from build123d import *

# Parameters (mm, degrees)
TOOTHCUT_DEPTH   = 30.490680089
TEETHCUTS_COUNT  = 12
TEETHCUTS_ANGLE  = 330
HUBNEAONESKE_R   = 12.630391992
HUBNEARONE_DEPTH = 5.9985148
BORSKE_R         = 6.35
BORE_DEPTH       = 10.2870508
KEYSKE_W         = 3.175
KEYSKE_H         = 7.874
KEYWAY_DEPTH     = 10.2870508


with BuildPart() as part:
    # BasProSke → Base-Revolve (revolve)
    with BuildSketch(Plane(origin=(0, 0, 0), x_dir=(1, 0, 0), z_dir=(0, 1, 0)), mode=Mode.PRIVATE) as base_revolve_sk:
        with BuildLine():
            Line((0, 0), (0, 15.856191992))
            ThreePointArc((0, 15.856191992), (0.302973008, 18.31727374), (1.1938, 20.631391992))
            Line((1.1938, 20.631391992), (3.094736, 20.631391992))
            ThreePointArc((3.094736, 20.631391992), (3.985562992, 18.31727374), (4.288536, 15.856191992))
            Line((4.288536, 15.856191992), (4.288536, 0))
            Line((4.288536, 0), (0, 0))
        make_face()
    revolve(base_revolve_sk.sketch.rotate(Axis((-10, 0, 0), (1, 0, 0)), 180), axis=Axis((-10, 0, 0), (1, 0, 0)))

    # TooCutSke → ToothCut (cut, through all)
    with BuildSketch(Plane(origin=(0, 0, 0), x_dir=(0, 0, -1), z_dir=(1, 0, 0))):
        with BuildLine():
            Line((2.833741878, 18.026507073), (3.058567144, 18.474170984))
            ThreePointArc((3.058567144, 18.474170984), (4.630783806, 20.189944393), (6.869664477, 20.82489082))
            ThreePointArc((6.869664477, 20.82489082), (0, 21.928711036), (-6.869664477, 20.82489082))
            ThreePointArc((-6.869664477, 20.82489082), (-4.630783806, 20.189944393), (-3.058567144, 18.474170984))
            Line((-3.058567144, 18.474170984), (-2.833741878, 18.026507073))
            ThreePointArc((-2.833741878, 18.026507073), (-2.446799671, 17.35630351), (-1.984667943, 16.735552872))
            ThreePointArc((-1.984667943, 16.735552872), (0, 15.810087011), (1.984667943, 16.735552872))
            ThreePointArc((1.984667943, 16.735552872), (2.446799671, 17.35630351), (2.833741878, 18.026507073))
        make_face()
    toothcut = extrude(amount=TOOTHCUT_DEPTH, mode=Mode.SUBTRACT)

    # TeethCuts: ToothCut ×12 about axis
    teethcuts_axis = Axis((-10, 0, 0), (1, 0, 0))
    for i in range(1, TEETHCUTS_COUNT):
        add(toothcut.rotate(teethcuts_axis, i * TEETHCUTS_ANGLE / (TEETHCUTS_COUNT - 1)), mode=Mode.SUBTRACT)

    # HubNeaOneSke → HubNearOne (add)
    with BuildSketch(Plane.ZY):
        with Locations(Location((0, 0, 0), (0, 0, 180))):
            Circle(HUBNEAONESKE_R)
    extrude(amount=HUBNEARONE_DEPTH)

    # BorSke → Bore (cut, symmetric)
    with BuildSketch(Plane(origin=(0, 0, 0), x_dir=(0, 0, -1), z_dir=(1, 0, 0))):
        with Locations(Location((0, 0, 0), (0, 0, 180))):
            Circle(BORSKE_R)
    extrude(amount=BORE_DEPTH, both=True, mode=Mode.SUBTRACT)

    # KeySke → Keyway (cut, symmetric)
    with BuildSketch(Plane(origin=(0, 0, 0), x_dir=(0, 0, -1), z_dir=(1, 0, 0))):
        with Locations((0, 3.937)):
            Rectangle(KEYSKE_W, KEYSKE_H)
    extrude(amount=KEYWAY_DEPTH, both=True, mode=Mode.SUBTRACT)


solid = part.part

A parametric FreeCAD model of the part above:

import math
import FreeCAD as App
import Part
import Sketcher
Q = App.Units.Quantity

doc = App.newDocument("Part")
body = doc.addObject("PartDesign::Body", "Body")

# Sketch on XZ plane
sketch1 = body.newObject("Sketcher::SketchObject", "Sketch")
sketch1.AttachmentSupport = (doc.getObject("XZ_Plane"), [""])
sketch1.MapMode = "FlatFace"
sketch1.addGeometry([
    Part.LineSegment(App.Vector(0, -15.9, 0), App.Vector(0, 0, 0)),  # 0
    Part.LineSegment(App.Vector(0, 0, 0), App.Vector(4.3, 0, 0)),  # 1
    Part.LineSegment(App.Vector(4.3, 0, 0), App.Vector(4.3, -15.9, 0)),  # 2
    Part.ArcOfCircle(Part.Circle(App.Vector(-5.9, -15.9, 0), App.Vector(0, 0, 1), 10.1), math.radians(-28), math.radians(0)),  # 3
    Part.LineSegment(App.Vector(3.1, -20.6, 0), App.Vector(1.2, -20.6, 0)),  # 4
    Part.ArcOfCircle(Part.Circle(App.Vector(10.1, -15.9, 0), App.Vector(0, 0, 1), 10.1), math.radians(180), math.radians(208)),  # 5
], False)
sketch1.addConstraint([
    Sketcher.Constraint("Coincident", 0, 2, 1, 1),
    Sketcher.Constraint("Coincident", 1, 2, 2, 1),
    Sketcher.Constraint("Tangent", 2, 2, 3, 2),
    Sketcher.Constraint("Coincident", 3, 1, 4, 1),
    Sketcher.Constraint("Coincident", 4, 2, 5, 2),
    Sketcher.Constraint("Tangent", 5, 1, 0, 1),
    Sketcher.Constraint("Vertical", 0),
    Sketcher.Constraint("Horizontal", 1),
    Sketcher.Constraint("Vertical", 2),
    Sketcher.Constraint("Horizontal", 4),
    Sketcher.Constraint("Coincident", 0, 2, -1, 1),
    Sketcher.Constraint("Equal", 3, 5),
    Sketcher.Constraint("Horizontal", 3, 3, 5, 3),
    Sketcher.Constraint("Radius", 3, Q("0.3995 in")),
    Sketcher.Constraint("DistanceX", -1, 1, 4, 2, Q("0.047 in")),
    Sketcher.Constraint("DistanceY", 0, 1, 0, 2, 15.856192),
    Sketcher.Constraint("DistanceX", 1, 1, 1, 2, 4.288536),
])
revolution = body.newObject("PartDesign::Revolution", "Revolution")
revolution.Profile = sketch1
revolution.ReferenceAxis = (sketch1, ["H_Axis"])
revolution.Angle = 360

# Sketch on YZ plane
sketch2 = body.newObject("Sketcher::SketchObject", "Sketch001")
sketch2.AttachmentSupport = (doc.getObject("YZ_Plane"), [""])
sketch2.MapMode = "FlatFace"
sketch2.addGeometry([
    Part.LineSegment(App.Vector(18, -2.8, 0), App.Vector(18.5, -3.1, 0)),  # 0
    Part.ArcOfCircle(Part.Circle(App.Vector(16.6, -6.9, 0), App.Vector(0, 0, 1), 4.3), math.radians(0), math.radians(63)),  # 1
    Part.ArcOfCircle(Part.Circle(App.Vector(0, 0, 0), App.Vector(0, 0, 1), 21.9), math.radians(-18), math.radians(18)),  # 2
    Part.ArcOfCircle(Part.Circle(App.Vector(16.6, 6.9, 0), App.Vector(0, 0, 1), 4.3), math.radians(-63), math.radians(0)),  # 3
    Part.LineSegment(App.Vector(18.5, 3.1, 0), App.Vector(18, 2.8, 0)),  # 4
    Part.ArcOfCircle(Part.Circle(App.Vector(21, -3.1, 0), App.Vector(0, 0, 1), 6.7), math.radians(116.67), math.radians(130)),  # 5
    Part.ArcOfCircle(Part.Circle(App.Vector(18.4, 0, 0), App.Vector(0, 0, 1), 2.6), math.radians(130), math.radians(230)),  # 6
    Part.ArcOfCircle(Part.Circle(App.Vector(21, 3.1, 0), App.Vector(0, 0, 1), 6.7), math.radians(-130), math.radians(-116.67)),  # 7
], False)
sketch2.addConstraint([
    Sketcher.Constraint("Tangent", 0, 2, 1, 2),
    Sketcher.Constraint("Coincident", 1, 1, 2, 1),
    Sketcher.Constraint("Coincident", 2, 2, 3, 2),
    Sketcher.Constraint("Tangent", 3, 1, 4, 1),
    Sketcher.Constraint("Tangent", 4, 2, 5, 1),
    Sketcher.Constraint("Tangent", 5, 2, 6, 1),
    Sketcher.Constraint("Tangent", 6, 2, 7, 1),
    Sketcher.Constraint("Tangent", 7, 2, 0, 1),
    Sketcher.Constraint("Coincident", 2, 3, -1, 1),
    Sketcher.Constraint("Equal", 1, 3),
    Sketcher.Constraint("Equal", 5, 7),
    Sketcher.Constraint("Symmetric", 1, 3, 3, 3, -1),
    Sketcher.Constraint("Symmetric", 5, 3, 7, 3, -1),
    Sketcher.Constraint("Horizontal", 3, 3, 2, 2),
    Sketcher.Constraint("Radius", 5, Q("0.262 in")),
    Sketcher.Constraint("Radius", 6, Q("0.102 in")),
    Sketcher.Constraint("Radius", 2, 21.928711),
    Sketcher.Constraint("Radius", 1, 4.264725),
    Sketcher.Constraint("DistanceY", 5, 2, 3, 1, 1.073899),
    Sketcher.Constraint("Distance", 0, 0.500948),
    Sketcher.Constraint("DistanceX", -1, 1, 0, 2, 18.474171),
])
pocket1 = body.newObject("PartDesign::Pocket", "Pocket")
pocket1.Profile = sketch2
pocket1.Type = "ThroughAll"
pocket1.Reversed = True
doc.recompute()

polarpattern = body.newObject("PartDesign::PolarPattern", "PolarPattern")
polarpattern.Originals = [pocket1]
polarpattern.Axis = (doc.getObject("X_Axis"), [""])
polarpattern.Angle = 360
polarpattern.Occurrences = 12
body.Tip = polarpattern

# Sketch on YZ plane
sketch3 = body.newObject("Sketcher::SketchObject", "Sketch002")
sketch3.AttachmentSupport = (doc.getObject("YZ_Plane"), [""])
sketch3.MapMode = "FlatFace"
sketch3.addGeometry(Part.Circle(App.Vector(0, 0, 0), App.Vector(0, 0, 1), 13), False)
sketch3.addConstraint([
    Sketcher.Constraint("Coincident", 0, 3, -1, 1),
    Sketcher.Constraint("Diameter", 0, 25.260784),
])
pad1 = body.newObject("PartDesign::Pad", "Pad")
pad1.Profile = sketch3
pad1.Length = 5.998515
pad1.Reversed = True

# Sketch on YZ plane
sketch4 = body.newObject("Sketcher::SketchObject", "Sketch003")
sketch4.AttachmentSupport = (doc.getObject("YZ_Plane"), [""])
sketch4.MapMode = "FlatFace"
sketch4.addGeometry(Part.Circle(App.Vector(0, 0, 0), App.Vector(0, 0, 1), 6), False)
sketch4.addConstraint([
    Sketcher.Constraint("Coincident", 0, 3, -1, 1),
    Sketcher.Constraint("Diameter", 0, Q("0.5 in")),
])
pocket2 = body.newObject("PartDesign::Pocket", "Pocket001")
pocket2.Profile = sketch4
pocket2.Length = 20.574102
pocket2.Midplane = True

# Sketch on YZ plane
sketch5 = body.newObject("Sketcher::SketchObject", "Sketch004")
sketch5.AttachmentSupport = (doc.getObject("YZ_Plane"), [""])
sketch5.MapMode = "FlatFace"
sketch5.addGeometry([
    Part.LineSegment(App.Vector(7.9, 1.6, 0), App.Vector(0, 1.6, 0)),
    Part.LineSegment(App.Vector(0, 1.6, 0), App.Vector(0, -1.6, 0)),
    Part.LineSegment(App.Vector(0, -1.6, 0), App.Vector(7.9, -1.6, 0)),
    Part.LineSegment(App.Vector(7.9, -1.6, 0), App.Vector(7.9, 1.6, 0)),
], False)
sketch5.addConstraint([
    Sketcher.Constraint("Coincident", 0, 2, 1, 1),
    Sketcher.Constraint("Coincident", 1, 2, 2, 1),
    Sketcher.Constraint("Coincident", 2, 2, 3, 1),
    Sketcher.Constraint("Coincident", 3, 2, 0, 1),
    Sketcher.Constraint("Horizontal", 0),
    Sketcher.Constraint("Vertical", 1),
    Sketcher.Constraint("Horizontal", 2),
    Sketcher.Constraint("Vertical", 3),
    Sketcher.Constraint("Symmetric", 0, 2, 1, 2, -1, 1),
    Sketcher.Constraint("DistanceX", 0, 2, 0, 1, Q("0.31 in")),
    Sketcher.Constraint("DistanceY", 1, 2, 1, 1, Q("0.125 in")),
])
pocket3 = body.newObject("PartDesign::Pocket", "Pocket002")
pocket3.Profile = sketch5
pocket3.Length = 20.574102
pocket3.Midplane = True

doc.recompute()
